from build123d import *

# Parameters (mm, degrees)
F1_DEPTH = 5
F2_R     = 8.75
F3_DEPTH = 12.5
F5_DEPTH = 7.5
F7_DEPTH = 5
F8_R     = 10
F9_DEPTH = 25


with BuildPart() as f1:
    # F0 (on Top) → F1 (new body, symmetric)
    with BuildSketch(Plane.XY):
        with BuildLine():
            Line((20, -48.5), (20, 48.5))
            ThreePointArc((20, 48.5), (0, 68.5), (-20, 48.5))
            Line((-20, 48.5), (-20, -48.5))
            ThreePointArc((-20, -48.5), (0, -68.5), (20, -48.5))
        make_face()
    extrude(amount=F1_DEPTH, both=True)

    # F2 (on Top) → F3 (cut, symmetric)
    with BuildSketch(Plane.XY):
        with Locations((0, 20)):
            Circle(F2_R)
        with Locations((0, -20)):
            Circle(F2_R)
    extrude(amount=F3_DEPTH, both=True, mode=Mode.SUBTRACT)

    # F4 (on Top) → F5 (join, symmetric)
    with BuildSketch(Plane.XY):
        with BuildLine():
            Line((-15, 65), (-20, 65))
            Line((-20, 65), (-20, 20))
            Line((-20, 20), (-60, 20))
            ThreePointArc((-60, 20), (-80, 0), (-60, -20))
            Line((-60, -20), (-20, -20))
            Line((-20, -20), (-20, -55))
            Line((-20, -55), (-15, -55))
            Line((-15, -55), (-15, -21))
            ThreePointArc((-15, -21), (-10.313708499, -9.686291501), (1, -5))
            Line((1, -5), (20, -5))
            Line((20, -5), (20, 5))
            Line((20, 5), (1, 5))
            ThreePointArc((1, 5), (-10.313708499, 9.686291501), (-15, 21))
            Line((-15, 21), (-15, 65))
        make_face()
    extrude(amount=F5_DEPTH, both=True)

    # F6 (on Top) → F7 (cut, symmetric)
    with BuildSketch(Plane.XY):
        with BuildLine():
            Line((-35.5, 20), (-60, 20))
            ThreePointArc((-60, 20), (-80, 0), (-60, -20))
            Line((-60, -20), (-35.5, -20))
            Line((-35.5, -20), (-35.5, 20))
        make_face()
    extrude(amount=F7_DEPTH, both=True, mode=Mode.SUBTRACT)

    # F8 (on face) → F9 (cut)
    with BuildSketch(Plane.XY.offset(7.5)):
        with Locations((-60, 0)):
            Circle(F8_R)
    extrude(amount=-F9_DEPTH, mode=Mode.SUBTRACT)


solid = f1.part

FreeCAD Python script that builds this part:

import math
import FreeCAD as App
import Part
import Sketcher

doc = App.newDocument("Part")
body = doc.addObject("PartDesign::Body", "Body")

# Sketch on XY plane
sketch1 = doc.addObject("Sketcher::SketchObject", "Sketch")
body.addObject(sketch1)
sketch1.AttachmentSupport = (doc.XY_Plane, [""])
sketch1.MapMode = "FlatFace"
sketch1.addGeometry([
    Part.LineSegment(App.Vector(20, -48.5, 0), App.Vector(20, 48.5, 0)),
    Part.ArcOfCircle(Part.Circle(App.Vector(0, 48.5, 0), App.Vector(0, 0, 1), 20), math.radians(0), math.radians(180)),
    Part.LineSegment(App.Vector(-20, 48.5, 0), App.Vector(-20, -48.5, 0)),
    Part.ArcOfCircle(Part.Circle(App.Vector(0, -48.5, 0), App.Vector(0, 0, 1), 20), math.radians(180), math.radians(360)),
], False)
sketch1.addConstraint([
    Sketcher.Constraint("Tangent", 0, 2, 1, 1),
    Sketcher.Constraint("Tangent", 1, 2, 2, 1),
    Sketcher.Constraint("Tangent", 2, 2, 3, 1),
    Sketcher.Constraint("Tangent", 3, 2, 0, 1),
    Sketcher.Constraint("Vertical", 0),
    Sketcher.Constraint("Vertical", 2),
    Sketcher.Constraint("Symmetric", 1, 3, 3, 3, -1, 1),
    Sketcher.Constraint("Radius", 1, 20.0),
    Sketcher.Constraint("DistanceY", 0, 1, 0, 2, 97.0),
])
pad1 = doc.addObject("PartDesign::Pad", "Pad")
body.addObject(pad1)
pad1.Profile = sketch1
pad1.Length = 10
pad1.Midplane = True

# Sketch on XY plane
sketch2 = doc.addObject("Sketcher::SketchObject", "Sketch001")
body.addObject(sketch2)
sketch2.AttachmentSupport = (doc.XY_Plane, [""])
sketch2.MapMode = "FlatFace"
sketch2.addGeometry([
    Part.Circle(App.Vector(0, 20, 0), App.Vector(0, 0, 1), 8.75),
    Part.Circle(App.Vector(0, -20, 0), App.Vector(0, 0, 1), 8.75),
], False)
sketch2.addConstraint([
    Sketcher.Constraint("Equal", 0, 1),
    Sketcher.Constraint("Symmetric", 0, 3, 1, 3, -1, 1),
    Sketcher.Constraint("PointOnObject", 0, 3, -2),
    Sketcher.Constraint("Diameter", 0, 17.5),
    Sketcher.Constraint("DistanceY", -1, 1, 0, 3, 20.0),
])
pocket1 = doc.addObject("PartDesign::Pocket", "Pocket")
body.addObject(pocket1)
pocket1.Profile = sketch2
pocket1.Length = 25
pocket1.Midplane = True

# Sketch on XY plane
sketch3 = doc.addObject("Sketcher::SketchObject", "Sketch002")
body.addObject(sketch3)
sketch3.AttachmentSupport = (doc.XY_Plane, [""])
sketch3.MapMode = "FlatFace"
sketch3.addGeometry([
    Part.LineSegment(App.Vector(-15, 65, 0), App.Vector(-20, 65, 0)),  # 0
    Part.LineSegment(App.Vector(-20, 65, 0), App.Vector(-20, 20, 0)),  # 1
    Part.LineSegment(App.Vector(-20, 20, 0), App.Vector(-60, 20, 0)),  # 2
    Part.ArcOfCircle(Part.Circle(App.Vector(-60, 0, 0), App.Vector(0, 0, 1), 20), math.radians(90), math.radians(270)),  # 3
    Part.LineSegment(App.Vector(-60, -20, 0), App.Vector(-20, -20, 0)),  # 4
    Part.LineSegment(App.Vector(-20, -20, 0), App.Vector(-20, -55, 0)),  # 5
    Part.LineSegment(App.Vector(-20, -55, 0), App.Vector(-15, -55, 0)),  # 6
    Part.LineSegment(App.Vector(-15, -55, 0), App.Vector(-15, -21, 0)),  # 7
    Part.ArcOfCircle(Part.Circle(App.Vector(1, -21, 0), App.Vector(0, 0, 1), 16), math.radians(90), math.radians(180)),  # 8
    Part.LineSegment(App.Vector(1, -5, 0), App.Vector(20, -5, 0)),  # 9
    Part.LineSegment(App.Vector(20, -5, 0), App.Vector(20, 5, 0)),  # 10
    Part.LineSegment(App.Vector(20, 5, 0), App.Vector(1, 5, 0)),  # 11
    Part.ArcOfCircle(Part.Circle(App.Vector(1, 21, 0), App.Vector(0, 0, 1), 16), math.radians(180), math.radians(270)),  # 12
    Part.LineSegment(App.Vector(-15, 21, 0), App.Vector(-15, 65, 0)),  # 13
], False)
sketch3.addConstraint([
    Sketcher.Constraint("Coincident", 0, 2, 1, 1),
    Sketcher.Constraint("Coincident", 1, 2, 2, 1),
    Sketcher.Constraint("Tangent", 2, 2, 3, 1),
    Sketcher.Constraint("Tangent", 3, 2, 4, 1),
    Sketcher.Constraint("Coincident", 4, 2, 5, 1),
    Sketcher.Constraint("Coincident", 5, 2, 6, 1),
    Sketcher.Constraint("Coincident", 6, 2, 7, 1),
    Sketcher.Constraint("Tangent", 7, 2, 8, 2),
    Sketcher.Constraint("Tangent", 8, 1, 9, 1),
    Sketcher.Constraint("Coincident", 9, 2, 10, 1),
    Sketcher.Constraint("Coincident", 10, 2, 11, 1),
    Sketcher.Constraint("Tangent", 11, 2, 12, 2),
    Sketcher.Constraint("Tangent", 12, 1, 13, 1),
    Sketcher.Constraint("Coincident", 13, 2, 0, 1),
    Sketcher.Constraint("Horizontal", 0),
    Sketcher.Constraint("Vertical", 1),
    Sketcher.Constraint("Horizontal", 2),
    Sketcher.Constraint("Horizontal", 4),
    Sketcher.Constraint("Vertical", 5),
    Sketcher.Constraint("Horizontal", 6),
    Sketcher.Constraint("Vertical", 7),
    Sketcher.Constraint("Horizontal", 9),
    Sketcher.Constraint("Vertical", 10),
    Sketcher.Constraint("Horizontal", 11),
    Sketcher.Constraint("Vertical", 13),
    Sketcher.Constraint("Equal", 8, 12),
    Sketcher.Constraint("Symmetric", 8, 3, 12, 3, -1),
    Sketcher.Constraint("Symmetric", 1, 2, 4, 2, -1),
    Sketcher.Constraint("Radius", 3, 20.0),
    Sketcher.Constraint("Radius", 8, 16.0),
    Sketcher.Constraint("DistanceX", 0, 2, 0, 1, 5.0),
    Sketcher.Constraint("DistanceX", 2, 2, 2, 1, 40.0),
    Sketcher.Constraint("DistanceX", 9, 1, 9, 2, 19.0),
    Sketcher.Constraint("DistanceY", 1, 2, 1, 1, 45.0),
    Sketcher.Constraint("DistanceY", 5, 2, 5, 1, 35.0),
    Sketcher.Constraint("DistanceY", 7, 1, 7, 2, 34.0),
    Sketcher.Constraint("DistanceX", 3, 3, -1, 1, 60.0),
])
pad2 = doc.addObject("PartDesign::Pad", "Pad001")
body.addObject(pad2)
pad2.Profile = sketch3
pad2.Length = 15
pad2.Midplane = True

# Sketch on XY plane
sketch4 = doc.addObject("Sketcher::SketchObject", "Sketch003")
body.addObject(sketch4)
sketch4.AttachmentSupport = (doc.XY_Plane, [""])
sketch4.MapMode = "FlatFace"
sketch4.addGeometry([
    Part.LineSegment(App.Vector(-35.5, 20, 0), App.Vector(-60, 20, 0)),
    Part.ArcOfCircle(Part.Circle(App.Vector(-60, 0, 0), App.Vector(0, 0, 1), 20), math.radians(90), math.radians(270)),
    Part.LineSegment(App.Vector(-60, -20, 0), App.Vector(-35.5, -20, 0)),
    Part.LineSegment(App.Vector(-35.5, -20, 0), App.Vector(-35.5, 20, 0)),
], False)
sketch4.addConstraint([
    Sketcher.Constraint("Tangent", 0, 2, 1, 1),
    Sketcher.Constraint("Tangent", 1, 2, 2, 1),
    Sketcher.Constraint("Coincident", 2, 2, 3, 1),
    Sketcher.Constraint("Coincident", 3, 2, 0, 1),
    Sketcher.Constraint("Horizontal", 0),
    Sketcher.Constraint("Horizontal", 2),
    Sketcher.Constraint("Vertical", 3),
    Sketcher.Constraint("PointOnObject", 1, 3, -1),
    Sketcher.Constraint("Radius", 1, 20.0),
    Sketcher.Constraint("DistanceX", 0, 2, 0, 1, 24.5),
    Sketcher.Constraint("DistanceX", 1, 3, -1, 1, 60.0),
])
pocket2 = doc.addObject("PartDesign::Pocket", "Pocket001")
body.addObject(pocket2)
pocket2.Profile = sketch4
pocket2.Length = 10
pocket2.Midplane = True

# Sketch on XY plane
sketch5 = doc.addObject("Sketcher::SketchObject", "Sketch004")
body.addObject(sketch5)
sketch5.AttachmentSupport = (doc.XY_Plane, [""])
sketch5.MapMode = "FlatFace"
sketch5.AttachmentOffset = App.Placement(App.Vector(0, 0, 7.5), App.Rotation())
sketch5.addGeometry(Part.Circle(App.Vector(-60, 0, 0), App.Vector(0, 0, 1), 10), False)
sketch5.addConstraint([
    Sketcher.Constraint("PointOnObject", 0, 3, -1),
    Sketcher.Constraint("Diameter", 0, 20.0),
    Sketcher.Constraint("DistanceX", 0, 3, -1, 1, 60.0),
])
pocket3 = doc.addObject("PartDesign::Pocket", "Pocket002")
body.addObject(pocket3)
pocket3.Profile = sketch5
pocket3.Length = 25

doc.recompute()
